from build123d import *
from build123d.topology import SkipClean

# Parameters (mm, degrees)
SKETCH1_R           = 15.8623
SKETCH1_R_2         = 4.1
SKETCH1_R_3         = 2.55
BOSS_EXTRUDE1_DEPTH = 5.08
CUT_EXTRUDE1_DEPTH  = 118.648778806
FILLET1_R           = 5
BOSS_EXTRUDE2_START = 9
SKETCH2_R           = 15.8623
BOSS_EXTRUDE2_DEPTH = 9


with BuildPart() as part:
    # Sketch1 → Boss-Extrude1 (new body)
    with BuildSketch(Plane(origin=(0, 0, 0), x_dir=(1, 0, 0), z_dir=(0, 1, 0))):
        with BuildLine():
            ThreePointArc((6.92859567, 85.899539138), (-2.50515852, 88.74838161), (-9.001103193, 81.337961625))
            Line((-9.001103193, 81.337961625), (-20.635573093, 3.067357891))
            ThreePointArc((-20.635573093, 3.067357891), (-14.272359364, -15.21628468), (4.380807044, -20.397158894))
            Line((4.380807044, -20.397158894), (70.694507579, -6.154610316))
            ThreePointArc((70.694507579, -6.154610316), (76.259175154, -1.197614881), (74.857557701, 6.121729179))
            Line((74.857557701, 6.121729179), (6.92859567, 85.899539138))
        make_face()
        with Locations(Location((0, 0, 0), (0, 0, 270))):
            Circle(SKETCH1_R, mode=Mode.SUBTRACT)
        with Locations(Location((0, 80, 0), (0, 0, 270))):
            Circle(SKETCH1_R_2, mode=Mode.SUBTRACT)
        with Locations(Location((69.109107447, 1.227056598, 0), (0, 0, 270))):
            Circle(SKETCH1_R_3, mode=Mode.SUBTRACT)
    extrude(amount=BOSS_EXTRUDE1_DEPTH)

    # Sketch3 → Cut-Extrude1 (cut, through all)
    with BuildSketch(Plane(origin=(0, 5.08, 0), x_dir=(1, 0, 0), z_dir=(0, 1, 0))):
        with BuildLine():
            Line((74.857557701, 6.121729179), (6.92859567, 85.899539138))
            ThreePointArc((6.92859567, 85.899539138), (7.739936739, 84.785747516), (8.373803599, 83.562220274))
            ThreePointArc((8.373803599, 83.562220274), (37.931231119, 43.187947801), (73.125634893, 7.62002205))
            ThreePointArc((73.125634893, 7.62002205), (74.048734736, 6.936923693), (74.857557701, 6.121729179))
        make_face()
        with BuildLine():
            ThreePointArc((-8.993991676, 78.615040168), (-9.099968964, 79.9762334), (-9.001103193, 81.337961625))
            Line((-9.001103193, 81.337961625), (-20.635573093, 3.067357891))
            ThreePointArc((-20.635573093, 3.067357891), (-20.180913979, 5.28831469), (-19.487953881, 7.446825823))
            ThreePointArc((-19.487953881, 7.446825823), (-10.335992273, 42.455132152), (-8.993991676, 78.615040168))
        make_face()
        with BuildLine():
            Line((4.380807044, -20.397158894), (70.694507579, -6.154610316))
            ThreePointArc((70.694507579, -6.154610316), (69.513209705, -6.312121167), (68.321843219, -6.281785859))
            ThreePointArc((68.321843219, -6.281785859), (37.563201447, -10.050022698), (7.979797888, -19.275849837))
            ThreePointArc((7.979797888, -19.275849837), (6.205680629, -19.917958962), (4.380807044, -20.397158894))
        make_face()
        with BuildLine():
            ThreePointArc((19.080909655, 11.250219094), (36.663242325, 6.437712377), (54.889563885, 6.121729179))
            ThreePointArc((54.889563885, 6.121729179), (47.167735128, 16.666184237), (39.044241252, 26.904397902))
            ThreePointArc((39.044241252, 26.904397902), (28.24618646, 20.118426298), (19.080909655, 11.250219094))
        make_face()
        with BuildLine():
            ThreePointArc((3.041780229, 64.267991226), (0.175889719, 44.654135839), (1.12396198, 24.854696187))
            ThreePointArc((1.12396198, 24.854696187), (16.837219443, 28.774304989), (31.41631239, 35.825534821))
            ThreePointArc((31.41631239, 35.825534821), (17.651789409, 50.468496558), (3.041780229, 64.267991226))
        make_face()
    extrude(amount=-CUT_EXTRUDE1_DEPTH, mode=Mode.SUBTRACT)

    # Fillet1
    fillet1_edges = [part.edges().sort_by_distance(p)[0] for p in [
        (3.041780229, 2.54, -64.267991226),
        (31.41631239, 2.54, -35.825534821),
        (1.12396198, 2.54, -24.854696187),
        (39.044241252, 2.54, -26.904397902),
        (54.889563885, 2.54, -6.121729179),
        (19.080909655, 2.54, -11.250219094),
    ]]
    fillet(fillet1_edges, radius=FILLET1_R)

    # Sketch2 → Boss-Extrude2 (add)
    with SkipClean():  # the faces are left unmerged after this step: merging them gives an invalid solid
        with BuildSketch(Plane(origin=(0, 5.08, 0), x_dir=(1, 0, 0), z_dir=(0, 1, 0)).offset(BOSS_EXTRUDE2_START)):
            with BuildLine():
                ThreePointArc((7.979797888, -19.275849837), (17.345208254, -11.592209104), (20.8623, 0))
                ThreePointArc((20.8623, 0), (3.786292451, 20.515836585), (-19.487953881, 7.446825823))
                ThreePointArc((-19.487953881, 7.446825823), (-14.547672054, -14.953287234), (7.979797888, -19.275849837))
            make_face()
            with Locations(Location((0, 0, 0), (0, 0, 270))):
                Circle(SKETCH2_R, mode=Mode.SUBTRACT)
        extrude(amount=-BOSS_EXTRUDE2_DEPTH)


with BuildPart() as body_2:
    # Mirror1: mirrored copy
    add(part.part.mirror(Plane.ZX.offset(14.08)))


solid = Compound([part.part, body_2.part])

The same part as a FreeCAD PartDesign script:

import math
import FreeCAD as App
import Part
import Sketcher

V = App.Vector


def edges_at(feature, points):
    """Names of the edges that pass closest to the given points."""
    edges = feature.Shape.Edges
    near = lambda p: min(range(len(edges)), key=lambda i: edges[i].distToShape(Part.Vertex(*p))[0])
    return sorted({f"Edge{near(p) + 1}" for p in points})

doc = App.newDocument("Part")
body = doc.addObject("PartDesign::Body", "Body")

# Sketch on XZ plane
sketch1 = body.newObject("Sketcher::SketchObject", "Sketch")
sketch1.AttachmentSupport = (doc.getObject("XZ_Plane"), [""])
sketch1.MapMode = "FlatFace"
sketch1.addGeometry([
    Part.ArcOfCircle(Part.Circle(V(0, -80, 0), V(0, 0, 1), 9.1), math.radians(-171.545223), math.radians(-40.413627)),  # 0
    Part.LineSegment(V(-9.001103, -81.337962, 0), V(-20.635573, -3.067358, 0)),  # 1
    Part.ArcOfCircle(Part.Circle(V(0, 0, 0), V(0, 0, 1), 20.8623), math.radians(77.878423), math.radians(188.454777)),  # 2
    Part.LineSegment(V(4.380807, 20.397159, 0), V(70.694508, 6.15461, 0)),  # 3
    Part.ArcOfCircle(Part.Circle(V(69.109107, -1.227057, 0), V(0, 0, 1), 7.55), math.radians(-40.413627), math.radians(77.878423)),  # 4
    Part.LineSegment(V(74.857558, -6.121729, 0), V(6.928596, -85.899539, 0)),  # 5
    Part.Circle(V(0, 0, 0), V(0, 0, 1), 15.8623),  # 6
    Part.Circle(V(69.109107, -1.227057, 0), V(0, 0, 1), 2.55),  # 7
    Part.Circle(V(0, -80, 0), V(0, 0, 1), 4.1),  # 8
], False)
sketch1.addConstraint([
    Sketcher.Constraint("Tangent", 0, 1, 1, 1),
    Sketcher.Constraint("Tangent", 1, 2, 2, 2),
    Sketcher.Constraint("Tangent", 2, 1, 3, 1),
    Sketcher.Constraint("Tangent", 3, 2, 4, 2),
    Sketcher.Constraint("Tangent", 4, 1, 5, 1),
    Sketcher.Constraint("Tangent", 5, 2, 0, 2),
    Sketcher.Constraint("Coincident", 2, 3, -1, 1),
    Sketcher.Constraint("Coincident", 6, 3, -1, 1),
    Sketcher.Constraint("Coincident", 7, 3, 4, 3),
    Sketcher.Constraint("Coincident", 8, 3, 0, 3),
    Sketcher.Constraint("PointOnObject", 0, 3, -2),
    Sketcher.Constraint("Diameter", 7, 5.1),
    Sketcher.Constraint("Diameter", 8, 8.2),
    Sketcher.Constraint("Radius", 0, 9.1),
    Sketcher.Constraint("Radius", 4, 7.55),
    Sketcher.Constraint("DistanceY", 0, 3, -1, 1, 80.0),
    Sketcher.Constraint("Diameter", 6, 31.7246),
    Sketcher.Constraint("Radius", 2, 20.8623),
    Sketcher.Constraint("DistanceX", 2, 1, 4, 3, 64.7283),
    Sketcher.Constraint("DistanceX", 7, 3, 3, 2, 1.5854),
])
pad1 = body.newObject("PartDesign::Pad", "Pad")
pad1.Profile = sketch1
pad1.Length = 5.08
pad1.Reversed = True

# Sketch on XZ plane
sketch2 = body.newObject("Sketcher::SketchObject", "Sketch001")
sketch2.AttachmentSupport = (doc.getObject("XZ_Plane"), [""])
sketch2.MapMode = "FlatFace"
sketch2.AttachmentOffset = App.Placement(V(0, 0, -5.08), App.Rotation())
sketch2.addGeometry([
    Part.LineSegment(V(74.857558, -6.121729, 0), V(6.928596, -85.899539, 0)),  # 0
    Part.ArcOfCircle(Part.Circle(V(0, -80, 0), V(0, 0, 1), 9.1), math.radians(-40.413627), math.radians(-23.044926)),  # 1
    Part.ArcOfCircle(Part.Circle(V(295.116676, -262.476155, 0), V(0, 0, 1), 337.981761), math.radians(131.057315), math.radians(148.037795)),  # 2
    Part.ArcOfCircle(Part.Circle(V(69.109107, -1.227057, 0), V(0, 0, 1), 7.55), math.radians(-57.859964), math.radians(-40.413627)),  # 3
    Part.ArcOfCircle(Part.Circle(V(0, -80, 0), V(0, 0, 1), 9.1), math.radians(171.245942), math.radians(188.454777)),  # 4
    Part.LineSegment(V(-9.001103, -81.337962, 0), V(-20.635573, -3.067358, 0)),  # 5
    Part.ArcOfCircle(Part.Circle(V(0, 0, 0), V(0, 0, 1), 20.8623), math.radians(-171.545223), math.radians(-159.086915)),  # 6
    Part.ArcOfCircle(Part.Circle(V(-174.418445, -66.649572, 0), V(0, 0, 1), 165.856631), math.radians(-4.137109), math.radians(20.913085)),  # 7
    Part.LineSegment(V(4.380807, 20.397159, 0), V(70.694508, 6.15461, 0)),  # 8
    Part.ArcOfCircle(Part.Circle(V(69.109107, -1.227057, 0), V(0, 0, 1), 7.55), math.radians(77.878423), math.radians(95.985306)),  # 9
    Part.ArcOfCircle(Part.Circle(V(73.774346, 178.207924, 0), V(0, 0, 1), 172.012577), math.radians(-112.48853), math.radians(-91.816482)),  # 10
    Part.ArcOfCircle(Part.Circle(V(0, 0, 0), V(0, 0, 1), 20.8623), math.radians(67.51147), math.radians(77.878423)),  # 11
    Part.ArcOfCircle(Part.Circle(V(47.03459, -78.853571, 0), V(0, 0, 1), 73.154777), math.radians(83.835998), math.radians(112.464873)),  # 12
    Part.ArcOfCircle(Part.Circle(V(-221.763169, 188.374708, 0), V(0, 0, 1), 338.179831), math.radians(-39.537398), math.radians(-35.108544)),  # 13
    Part.ArcOfCircle(Part.Circle(V(66.175299, 28.251498, 0), V(0, 0, 1), 61.46761), math.radians(-140.01083), math.radians(-116.192466)),  # 14
    Part.ArcOfCircle(Part.Circle(V(102.953121, -39.653081, 0), V(0, 0, 1), 102.898833), math.radians(171.731342), math.radians(193.840194)),  # 15
    Part.ArcOfCircle(Part.Circle(V(-9.97671, -102.812122, 0), V(0, 0, 1), 78.743795), math.radians(58.286837), math.radians(81.895903)),  # 16
    Part.ArcOfCircle(Part.Circle(V(-221.763169, 188.374708, 0), V(0, 0, 1), 338.179832), math.radians(-48.336872), math.radians(-41.526134)),  # 17
], False)
sketch2.addConstraint([
    Sketcher.Constraint("Coincident", 0, 2, 1, 1),
    Sketcher.Constraint("Coincident", 1, 2, 2, 2),
    Sketcher.Constraint("Coincident", 2, 1, 3, 1),
    Sketcher.Constraint("Coincident", 3, 2, 0, 1),
    Sketcher.Constraint("Coincident", 4, 2, 5, 1),
    Sketcher.Constraint("Coincident", 5, 2, 6, 1),
    Sketcher.Constraint("Coincident", 6, 2, 7, 2),
    Sketcher.Constraint("Coincident", 7, 1, 4, 1),
    Sketcher.Constraint("Coincident", 8, 2, 9, 1),
    Sketcher.Constraint("Coincident", 9, 2, 10, 2),
    Sketcher.Constraint("Coincident", 10, 1, 11, 1),
    Sketcher.Constraint("Coincident", 11, 2, 8, 1),
    Sketcher.Constraint("Coincident", 12, 1, 13, 2),
    Sketcher.Constraint("Coincident", 13, 1, 14, 2),
    Sketcher.Constraint("Coincident", 14, 1, 12, 2),
    Sketcher.Constraint("Coincident", 15, 1, 16, 2),
    Sketcher.Constraint("Coincident", 16, 1, 17, 2),
    Sketcher.Constraint("Coincident", 17, 1, 15, 2),
    Sketcher.Constraint("Coincident", 6, 3, -1, 1),
    Sketcher.Constraint("Coincident", 11, 3, -1, 1),
    Sketcher.Constraint("Coincident", 4, 3, 1, 3),
    Sketcher.Constraint("Coincident", 9, 3, 3, 3),
    Sketcher.Constraint("Coincident", 17, 3, 13, 3),
    Sketcher.Constraint("PointOnObject", 1, 3, -2),
    Sketcher.Constraint("Radius", 1, 9.1),
    Sketcher.Constraint("Radius", 4, 9.1),
    Sketcher.Constraint("Radius", 3, 7.55),
    Sketcher.Constraint("Radius", 9, 7.55),
    Sketcher.Constraint("DistanceY", 1, 3, -1, 1, 80.0),
    Sketcher.Constraint("Radius", 6, 20.8623),
    Sketcher.Constraint("Radius", 11, 20.8623),
    Sketcher.Constraint("Radius", 2, 337.981761),
    Sketcher.Constraint("Radius", 7, 165.856631),
    Sketcher.Constraint("Radius", 13, 338.179831),
    Sketcher.Constraint("Radius", 14, 61.46761),
    Sketcher.Constraint("Radius", 10, 172.012577),
    Sketcher.Constraint("Radius", 12, 73.154777),
    Sketcher.Constraint("Radius", 15, 102.898833),
    Sketcher.Constraint("Radius", 16, 78.743795),
    Sketcher.Constraint("Radius", 17, 338.179832),
    Sketcher.Constraint("DistanceX", -1, 1, 14, 3, 66.175299),
    Sketcher.Constraint("DistanceY", -1, 1, 14, 3, 28.251498),
    Sketcher.Constraint("DistanceY", 2, 3, 3, 3, 261.249099),
    Sketcher.Constraint("DistanceX", 16, 3, 12, 3, 57.0113),
    Sketcher.Constraint("DistanceX", 4, 2, 0, 2, 15.929699),
    Sketcher.Constraint("DistanceY", 0, 2, 7, 1, 7.284499),
    Sketcher.Constraint("DistanceX", 3, 3, 8, 2, 1.5854),
    Sketcher.Constraint("DistanceX", 10, 1, 14, 3, 58.195501),
    Sketcher.Constraint("DistanceY", 7, 3, -1, 1, 66.649572),
    Sketcher.Constraint("DistanceX", -1, 1, 12, 3, 47.03459),
    Sketcher.Constraint("DistanceY", 12, 3, -1, 1, 78.853571),
    Sketcher.Constraint("DistanceX", 13, 3, -1, 1, 221.763169),
    Sketcher.Constraint("DistanceX", -1, 1, 15, 3, 102.953121),
    Sketcher.Constraint("DistanceY", 15, 3, -1, 1, 39.653081),
    Sketcher.Constraint("DistanceY", -1, 1, 17, 3, 188.374708),
    Sketcher.Constraint("DistanceY", 1, 2, -1, 1, 83.56222),
    Sketcher.Constraint("DistanceY", 3, 2, -1, 1, 6.121729),
    Sketcher.Constraint("DistanceY", -1, 1, 8, 2, 6.15461),
    Sketcher.Constraint("DistanceY", -1, 1, 11, 2, 20.397159),
    Sketcher.Constraint("DistanceX", -1, 1, 15, 1, 1.123962),
    Sketcher.Constraint("DistanceX", 3, 3, 2, 3, 226.007568),
    Sketcher.Constraint("DistanceX", 3, 3, 10, 3, 4.665239),
    Sketcher.Constraint("DistanceX", 5, 2, 4, 2, 11.63447),
    Sketcher.Constraint("DistanceX", 5, 2, 6, 2, 1.147619),
])
pocket1 = body.newObject("PartDesign::Pocket", "Pocket")
pocket1.Profile = sketch2
pocket1.Type = "ThroughAll"
pocket1.Reversed = True
doc.recompute()

fillet = body.newObject("PartDesign::Fillet", "Fillet")
fillet.Base = (pocket1, edges_at(pocket1, [
    (3.042, 2.54, -64.268),
    (31.416, 2.54, -35.826),
    (1.124, 2.54, -24.855),
    (39.044, 2.54, -26.904),
    (54.89, 2.54, -6.122),
    (19.081, 2.54, -11.25),
]))
fillet.Radius = 5

# Sketch on XZ plane
sketch3 = body.newObject("Sketcher::SketchObject", "Sketch002")
sketch3.AttachmentSupport = (doc.getObject("XZ_Plane"), [""])
sketch3.MapMode = "FlatFace"
sketch3.AttachmentOffset = App.Placement(V(0, 0, -14.08), App.Rotation())
sketch3.addGeometry([
    Part.ArcOfCircle(Part.Circle(V(0, 0, 0), V(0, 0, 1), 20.8623), math.radians(0), math.radians(67.51147)),
    Part.ArcOfCircle(Part.Circle(V(0, 0, 0), V(0, 0, 1), 20.8623), math.radians(-159.086915), math.radians(0)),
    Part.ArcOfCircle(Part.Circle(V(0, 0, 0), V(0, 0, 1), 20.8623), math.radians(67.51147), math.radians(200.913085)),
    Part.Circle(V(0, 0, 0), V(0, 0, 1), 15.8623),
], False)
sketch3.addConstraint([
    Sketcher.Constraint("Tangent", 0, 1, 1, 2),
    Sketcher.Constraint("Tangent", 1, 1, 2, 2),
    Sketcher.Constraint("Tangent", 2, 1, 0, 2),
    Sketcher.Constraint("Coincident", 0, 3, -1, 1),
    Sketcher.Constraint("Coincident", 3, 3, -1, 1),
    Sketcher.Constraint("PointOnObject", 0, 1, -1),
    Sketcher.Constraint("Diameter", 3, 31.7246),
    Sketcher.Constraint("Radius", 0, 20.8623),
    Sketcher.Constraint("DistanceY", -1, 1, 2, 1, 19.27585),
    Sketcher.Constraint("DistanceX", 1, 1, -1, 1, 19.487954),
])
pad2 = body.newObject("PartDesign::Pad", "Pad001")
pad2.Profile = sketch3
pad2.Length = 9
body2 = doc.addObject("PartDesign::Body", "Body001")
doc.recompute()

mirroring = doc.addObject("Part::Mirroring", "Mirroring")
mirroring.Source = body
mirroring.Base = V(0, 14.08, 0)
mirroring.Normal = V(0, 1, 0)
body2.BaseFeature = mirroring
doc.recompute()
mirroring.Visibility = False

doc.recompute()
